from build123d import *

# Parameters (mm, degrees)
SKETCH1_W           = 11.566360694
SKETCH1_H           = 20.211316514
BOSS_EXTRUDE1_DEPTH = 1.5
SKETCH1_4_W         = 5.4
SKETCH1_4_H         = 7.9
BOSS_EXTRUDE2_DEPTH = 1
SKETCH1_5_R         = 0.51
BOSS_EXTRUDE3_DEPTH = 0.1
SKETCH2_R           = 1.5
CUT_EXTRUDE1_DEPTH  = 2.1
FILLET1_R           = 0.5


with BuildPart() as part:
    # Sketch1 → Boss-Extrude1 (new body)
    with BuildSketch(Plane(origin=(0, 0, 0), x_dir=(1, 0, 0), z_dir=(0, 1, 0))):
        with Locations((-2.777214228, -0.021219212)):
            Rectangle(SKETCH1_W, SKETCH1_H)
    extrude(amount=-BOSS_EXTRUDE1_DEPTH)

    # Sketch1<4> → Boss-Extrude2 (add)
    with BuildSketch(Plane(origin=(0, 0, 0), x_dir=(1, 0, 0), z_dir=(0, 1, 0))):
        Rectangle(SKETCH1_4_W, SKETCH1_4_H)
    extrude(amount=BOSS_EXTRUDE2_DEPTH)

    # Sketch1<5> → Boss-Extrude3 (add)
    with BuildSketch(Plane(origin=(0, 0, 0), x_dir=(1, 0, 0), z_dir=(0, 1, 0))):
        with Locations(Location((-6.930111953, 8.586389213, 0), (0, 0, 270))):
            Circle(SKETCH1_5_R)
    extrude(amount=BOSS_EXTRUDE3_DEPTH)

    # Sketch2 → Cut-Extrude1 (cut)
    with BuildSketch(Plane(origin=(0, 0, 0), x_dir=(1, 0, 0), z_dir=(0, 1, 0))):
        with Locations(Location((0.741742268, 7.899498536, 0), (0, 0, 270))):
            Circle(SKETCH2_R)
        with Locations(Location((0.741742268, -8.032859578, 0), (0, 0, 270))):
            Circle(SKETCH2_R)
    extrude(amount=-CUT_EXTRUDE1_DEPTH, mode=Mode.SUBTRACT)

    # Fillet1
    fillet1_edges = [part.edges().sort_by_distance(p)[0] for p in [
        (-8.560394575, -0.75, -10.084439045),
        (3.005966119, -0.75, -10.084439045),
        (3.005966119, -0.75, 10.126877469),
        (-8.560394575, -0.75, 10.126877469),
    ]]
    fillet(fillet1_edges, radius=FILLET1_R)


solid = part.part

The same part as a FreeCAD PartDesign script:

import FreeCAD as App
import Part
import Sketcher

V = App.Vector


def edges_at(feature, points):
    """Names of the edges that pass closest to the given points."""
    edges = feature.Shape.Edges
    near = lambda p: min(range(len(edges)), key=lambda i: edges[i].distToShape(Part.Vertex(*p))[0])
    return sorted({f"Edge{near(p) + 1}" for p in points})

doc = App.newDocument("Part")
params = doc.addObject("Spreadsheet::Sheet", "Params")
for row, (alias, value) in enumerate([
    ("pad1_length", "1.5 mm"),
    ("sketch2_width", "5.4 mm"),
    ("sketch2_height", "7.9 mm"),
    ("pad2_length", "1 mm"),
    ("sketch3_diameter", "1.02 mm"),
    ("pad3_length", "0.1 mm"),
    ("sketch4_diameter", "3 mm"),
    ("pocket1_length", "2.1 mm"),
    ("fillet_radius", "0.5 mm"),
], start=1):
    params.set(f"A{row}", alias)
    params.set(f"B{row}", "=" + value)
    params.setAlias(f"B{row}", alias)

body = doc.addObject("PartDesign::Body", "Body")

# Sketch on XZ plane
sketch1 = body.newObject("Sketcher::SketchObject", "Sketch")
sketch1.AttachmentSupport = (doc.getObject("XZ_Plane"), [""])
sketch1.MapMode = "FlatFace"
sketch1.addGeometry([
    Part.LineSegment(V(-9, -10, 0), V(-9, 10, 0)),
    Part.LineSegment(V(-9, 10, 0), V(3, 10, 0)),
    Part.LineSegment(V(3, 10, 0), V(3, -10, 0)),
    Part.LineSegment(V(3, -10, 0), V(-9, -10, 0)),
], False)
sketch1.addConstraint([
    Sketcher.Constraint("Coincident", 0, 2, 1, 1),
    Sketcher.Constraint("Coincident", 1, 2, 2, 1),
    Sketcher.Constraint("Coincident", 2, 2, 3, 1),
    Sketcher.Constraint("Coincident", 3, 2, 0, 1),
    Sketcher.Constraint("Vertical", 0),
    Sketcher.Constraint("Horizontal", 1),
    Sketcher.Constraint("Vertical", 2),
    Sketcher.Constraint("Horizontal", 3),
    Sketcher.Constraint("DistanceX", 1, 1, 1, 2, 11.566361),
    Sketcher.Constraint("DistanceY", 0, 1, 0, 2, 20.211317),
    Sketcher.Constraint("DistanceY", 2, 2, -1, 1, 10.084439),
    Sketcher.Constraint("DistanceX", 0, 2, -1, 1, 8.560395),
])
pad1 = body.newObject("PartDesign::Pad", "Pad")
pad1.Profile = sketch1
pad1.setExpression("Length", "Params.pad1_length")

# Sketch on XZ plane
sketch2 = body.newObject("Sketcher::SketchObject", "Sketch001")
sketch2.AttachmentSupport = (doc.getObject("XZ_Plane"), [""])
sketch2.MapMode = "FlatFace"
sketch2.addGeometry([
    Part.LineSegment(V(-3, -4, 0), V(-3, 4, 0)),
    Part.LineSegment(V(-3, 4, 0), V(3, 4, 0)),
    Part.LineSegment(V(3, 4, 0), V(3, -4, 0)),
    Part.LineSegment(V(3, -4, 0), V(-3, -4, 0)),
], False)
sketch2.addConstraint([
    Sketcher.Constraint("Coincident", 0, 2, 1, 1),
    Sketcher.Constraint("Coincident", 1, 2, 2, 1),
    Sketcher.Constraint("Coincident", 2, 2, 3, 1),
    Sketcher.Constraint("Coincident", 3, 2, 0, 1),
    Sketcher.Constraint("Vertical", 0),
    Sketcher.Constraint("Horizontal", 1),
    Sketcher.Constraint("Vertical", 2),
    Sketcher.Constraint("Horizontal", 3),
    Sketcher.Constraint("Symmetric", 0, 2, 2, 2, -1, 1),
    Sketcher.Constraint("DistanceX", 1, 1, 1, 2, 5.4),
    Sketcher.Constraint("DistanceY", 0, 1, 0, 2, 7.9),
])
sketch2.setExpression("Constraints[9]", "Params.sketch2_width")
sketch2.setExpression("Constraints[10]", "Params.sketch2_height")
pad2 = body.newObject("PartDesign::Pad", "Pad001")
pad2.Profile = sketch2
pad2.setExpression("Length", "Params.pad2_length")
pad2.Reversed = True

# Sketch on XZ plane
sketch3 = body.newObject("Sketcher::SketchObject", "Sketch002")
sketch3.AttachmentSupport = (doc.getObject("XZ_Plane"), [""])
sketch3.MapMode = "FlatFace"
sketch3.addGeometry(Part.Circle(V(-6.9, -8.6, 0), V(0, 0, 1), 0.5), False)
sketch3.addConstraint([
    Sketcher.Constraint("Diameter", 0, 1.02),
    Sketcher.Constraint("DistanceX", 0, 3, -1, 1, 6.930112),
    Sketcher.Constraint("DistanceY", 0, 3, -1, 1, 8.586389),
])
sketch3.setExpression("Constraints[0]", "Params.sketch3_diameter")
pad3 = body.newObject("PartDesign::Pad", "Pad002")
pad3.Profile = sketch3
pad3.setExpression("Length", "Params.pad3_length")
pad3.Reversed = True

# Sketch on XZ plane
sketch4 = body.newObject("Sketcher::SketchObject", "Sketch003")
sketch4.AttachmentSupport = (doc.getObject("XZ_Plane"), [""])
sketch4.MapMode = "FlatFace"
sketch4.addGeometry([
    Part.Circle(V(0.7, -7.9, 0), V(0, 0, 1), 1.5),
    Part.Circle(V(0.7, 8, 0), V(0, 0, 1), 1.5),
], False)
sketch4.addConstraint([
    Sketcher.Constraint("Equal", 0, 1),
    Sketcher.Constraint("Vertical", 0, 3, 1, 3),
    Sketcher.Constraint("Diameter", 0, 3.0),
    Sketcher.Constraint("DistanceY", 0, 3, -1, 1, 7.899499),
    Sketcher.Constraint("DistanceY", -1, 1, 1, 3, 8.03286),
    Sketcher.Constraint("DistanceX", -1, 1, 0, 3, 0.741742),
])
sketch4.setExpression("Constraints[2]", "Params.sketch4_diameter")
pocket1 = body.newObject("PartDesign::Pocket", "Pocket")
pocket1.Profile = sketch4
pocket1.setExpression("Length", "Params.pocket1_length")
pocket1.Reversed = True
doc.recompute()

fillet = body.newObject("PartDesign::Fillet", "Fillet")
fillet.Base = (pocket1, edges_at(pocket1, [
    (-8.56, -0.75, -10.084),
    (3.006, -0.75, -10.084),
    (3.006, -0.75, 10.127),
    (-8.56, -0.75, 10.127),
]))
fillet.setExpression("Radius", "Params.fillet_radius")

doc.recompute()
